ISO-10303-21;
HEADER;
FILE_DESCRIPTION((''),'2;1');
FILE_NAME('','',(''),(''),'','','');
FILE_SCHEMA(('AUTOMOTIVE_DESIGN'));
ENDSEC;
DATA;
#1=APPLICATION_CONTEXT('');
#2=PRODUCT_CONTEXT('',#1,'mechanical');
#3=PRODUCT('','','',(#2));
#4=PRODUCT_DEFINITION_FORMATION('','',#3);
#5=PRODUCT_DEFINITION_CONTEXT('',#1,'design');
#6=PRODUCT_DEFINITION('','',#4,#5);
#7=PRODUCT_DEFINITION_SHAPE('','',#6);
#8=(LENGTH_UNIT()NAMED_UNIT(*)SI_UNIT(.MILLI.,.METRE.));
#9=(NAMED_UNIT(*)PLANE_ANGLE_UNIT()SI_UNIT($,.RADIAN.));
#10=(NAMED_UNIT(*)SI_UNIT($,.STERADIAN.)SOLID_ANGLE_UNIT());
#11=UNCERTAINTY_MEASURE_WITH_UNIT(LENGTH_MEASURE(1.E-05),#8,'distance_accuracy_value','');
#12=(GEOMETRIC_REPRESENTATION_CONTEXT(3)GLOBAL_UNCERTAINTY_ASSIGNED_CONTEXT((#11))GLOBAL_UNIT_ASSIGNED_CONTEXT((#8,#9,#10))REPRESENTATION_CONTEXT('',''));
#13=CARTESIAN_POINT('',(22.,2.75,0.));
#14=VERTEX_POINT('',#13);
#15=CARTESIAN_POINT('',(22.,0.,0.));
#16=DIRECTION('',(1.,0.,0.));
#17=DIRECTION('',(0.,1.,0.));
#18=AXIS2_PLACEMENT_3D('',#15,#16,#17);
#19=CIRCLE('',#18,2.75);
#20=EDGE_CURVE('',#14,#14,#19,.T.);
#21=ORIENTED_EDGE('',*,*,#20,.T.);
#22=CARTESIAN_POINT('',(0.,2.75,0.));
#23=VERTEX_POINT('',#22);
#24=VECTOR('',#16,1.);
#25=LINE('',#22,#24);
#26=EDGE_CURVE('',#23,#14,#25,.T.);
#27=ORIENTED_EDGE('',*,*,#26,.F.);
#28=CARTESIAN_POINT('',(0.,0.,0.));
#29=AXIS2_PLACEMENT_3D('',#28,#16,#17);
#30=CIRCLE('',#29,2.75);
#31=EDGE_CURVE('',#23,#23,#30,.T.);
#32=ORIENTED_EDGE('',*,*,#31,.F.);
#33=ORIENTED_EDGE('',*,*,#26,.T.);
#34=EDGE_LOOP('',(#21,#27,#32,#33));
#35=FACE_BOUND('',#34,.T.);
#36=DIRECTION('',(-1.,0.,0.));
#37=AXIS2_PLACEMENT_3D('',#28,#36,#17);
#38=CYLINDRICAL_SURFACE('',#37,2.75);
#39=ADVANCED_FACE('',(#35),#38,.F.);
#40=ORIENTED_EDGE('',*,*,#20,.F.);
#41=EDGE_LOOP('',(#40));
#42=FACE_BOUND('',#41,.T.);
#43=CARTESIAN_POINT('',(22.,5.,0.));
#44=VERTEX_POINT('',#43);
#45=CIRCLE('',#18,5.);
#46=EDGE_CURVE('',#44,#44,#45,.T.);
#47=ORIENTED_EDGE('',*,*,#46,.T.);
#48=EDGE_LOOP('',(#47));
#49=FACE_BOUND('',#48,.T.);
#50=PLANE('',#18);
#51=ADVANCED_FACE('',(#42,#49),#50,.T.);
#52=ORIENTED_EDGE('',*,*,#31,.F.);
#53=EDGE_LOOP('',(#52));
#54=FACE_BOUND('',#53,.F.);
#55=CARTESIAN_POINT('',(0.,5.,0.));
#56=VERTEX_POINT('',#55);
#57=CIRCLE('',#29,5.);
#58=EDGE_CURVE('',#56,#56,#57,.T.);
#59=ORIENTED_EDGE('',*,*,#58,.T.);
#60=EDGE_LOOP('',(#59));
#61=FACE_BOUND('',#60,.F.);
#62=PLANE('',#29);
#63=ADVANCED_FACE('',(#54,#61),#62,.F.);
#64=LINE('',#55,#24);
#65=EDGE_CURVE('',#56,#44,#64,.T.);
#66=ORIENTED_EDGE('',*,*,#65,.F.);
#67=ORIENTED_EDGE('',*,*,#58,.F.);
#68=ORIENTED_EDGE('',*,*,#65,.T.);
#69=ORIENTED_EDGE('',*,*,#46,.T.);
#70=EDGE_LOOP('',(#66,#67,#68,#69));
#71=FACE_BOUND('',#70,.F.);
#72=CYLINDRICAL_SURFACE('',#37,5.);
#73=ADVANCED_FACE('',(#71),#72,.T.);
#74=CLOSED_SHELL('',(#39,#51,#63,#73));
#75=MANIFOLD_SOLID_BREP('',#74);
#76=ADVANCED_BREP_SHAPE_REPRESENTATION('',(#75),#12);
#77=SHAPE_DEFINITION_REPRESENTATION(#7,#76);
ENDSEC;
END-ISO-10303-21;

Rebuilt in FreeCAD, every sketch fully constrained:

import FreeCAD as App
import Part
import Sketcher

V = App.Vector

doc = App.newDocument("Part")
body = doc.addObject("PartDesign::Body", "Body")

# Sketch on YZ plane
sketch1 = body.newObject("Sketcher::SketchObject", "Sketch")
sketch1.AttachmentSupport = (doc.getObject("YZ_Plane"), [""])
sketch1.MapMode = "FlatFace"
sketch1.addGeometry(Part.Circle(V(0, 0, 0), V(0, 0, 1), 5), False)
sketch1.addGeometry(Part.Circle(V(0, 0, 0), V(0, 0, 1), 2.75), False)
sketch1.addConstraint(Sketcher.Constraint("Coincident", 0, 3, -1, 1))
sketch1.addConstraint(Sketcher.Constraint("Coincident", 1, 3, -1, 1))
sketch1.addConstraint(Sketcher.Constraint("Diameter", 0, 10.0))
sketch1.addConstraint(Sketcher.Constraint("Diameter", 1, 5.5))
pad1 = body.newObject("PartDesign::Pad", "Pad")
pad1.Profile = sketch1
pad1.Length = 22

doc.recompute()
